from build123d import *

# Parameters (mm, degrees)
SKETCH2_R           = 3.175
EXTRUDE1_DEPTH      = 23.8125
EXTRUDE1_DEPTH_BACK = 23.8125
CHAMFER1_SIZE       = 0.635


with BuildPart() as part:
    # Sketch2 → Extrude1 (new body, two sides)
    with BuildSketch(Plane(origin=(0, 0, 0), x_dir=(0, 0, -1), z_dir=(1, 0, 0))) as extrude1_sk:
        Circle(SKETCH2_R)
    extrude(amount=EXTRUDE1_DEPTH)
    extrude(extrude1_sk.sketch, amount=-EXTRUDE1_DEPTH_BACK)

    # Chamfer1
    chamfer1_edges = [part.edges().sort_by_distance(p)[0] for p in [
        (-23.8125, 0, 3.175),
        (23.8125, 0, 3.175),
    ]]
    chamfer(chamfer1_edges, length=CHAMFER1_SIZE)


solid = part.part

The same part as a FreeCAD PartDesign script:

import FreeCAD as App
import Part
import Sketcher
Q = App.Units.Quantity


def edges_at(feature, points):
    """Names of the edges that pass closest to the given points."""
    edges = feature.Shape.Edges
    near = lambda p: min(range(len(edges)), key=lambda i: edges[i].distToShape(Part.Vertex(*p))[0])
    return sorted({f"Edge{near(p) + 1}" for p in points})

doc = App.newDocument("Part")
body = doc.addObject("PartDesign::Body", "Body")

# Sketch on YZ plane
sketch1 = body.newObject("Sketcher::SketchObject", "Sketch")
sketch1.AttachmentSupport = (doc.getObject("YZ_Plane"), [""])
sketch1.MapMode = "FlatFace"
sketch1.addGeometry(Part.Circle(App.Vector(0, 0, 0), App.Vector(0, 0, 1), 3.2), False)
sketch1.addConstraint(Sketcher.Constraint("Coincident", 0, 3, -1, 1))
sketch1.addConstraint(Sketcher.Constraint("Diameter", 0, Q("0.25 in")))
pad1 = body.newObject("PartDesign::Pad", "Pad")
pad1.Profile = sketch1
pad1.Type = "TwoLengths"
pad1.Length = Q("0.9375 in")
pad1.Length2 = Q("0.9375 in")
doc.recompute()

chamfer = body.newObject("PartDesign::Chamfer", "Chamfer")
chamfer.Base = (pad1, edges_at(pad1, [(-23.812, 0, 3.175), (23.812, 0, 3.175)]))
chamfer.Size = Q("0.025 in")

doc.recompute()
